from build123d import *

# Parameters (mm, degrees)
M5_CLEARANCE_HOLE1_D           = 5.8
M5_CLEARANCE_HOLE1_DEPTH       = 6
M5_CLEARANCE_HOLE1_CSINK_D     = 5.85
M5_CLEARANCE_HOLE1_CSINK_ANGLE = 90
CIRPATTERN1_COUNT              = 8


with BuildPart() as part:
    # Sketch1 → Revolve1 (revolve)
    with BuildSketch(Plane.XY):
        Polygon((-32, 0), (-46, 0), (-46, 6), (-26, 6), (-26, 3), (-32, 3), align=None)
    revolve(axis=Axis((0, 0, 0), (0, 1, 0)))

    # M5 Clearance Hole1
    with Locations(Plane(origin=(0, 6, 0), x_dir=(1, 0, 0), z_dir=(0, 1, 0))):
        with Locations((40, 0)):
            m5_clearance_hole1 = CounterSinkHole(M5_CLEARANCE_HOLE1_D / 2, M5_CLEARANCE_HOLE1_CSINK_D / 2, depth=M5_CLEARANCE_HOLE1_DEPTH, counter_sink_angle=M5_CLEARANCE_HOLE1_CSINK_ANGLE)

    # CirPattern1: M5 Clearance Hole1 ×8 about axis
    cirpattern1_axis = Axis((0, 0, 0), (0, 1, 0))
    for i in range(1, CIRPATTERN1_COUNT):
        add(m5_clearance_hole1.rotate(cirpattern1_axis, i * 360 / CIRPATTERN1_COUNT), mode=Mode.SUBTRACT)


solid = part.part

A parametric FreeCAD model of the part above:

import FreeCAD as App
import Part
import Sketcher

V = App.Vector


def add_polygon(sketch, points):
    """Adds a closed chain of lines whose ends are joined by coincident constraints."""
    first, n = sketch.GeometryCount, len(points)
    for a, b in zip(points, points[1:] + points[:1]):
        sketch.addGeometry(Part.LineSegment(App.Vector(*a, 0), App.Vector(*b, 0)), False)
    for i in range(n):
        sketch.addConstraint(Sketcher.Constraint("Coincident", first + i, 2, first + (i + 1) % n, 1))

doc = App.newDocument("Part")
params = doc.addObject("Spreadsheet::Sheet", "Params")
for row, (alias, value) in enumerate([
    ("sketch1_width", "14 mm"),
    ("sketch1_width2", "6 mm"),
    ("revolution_angle", "360 deg"),
    ("sketch2_diameter", "5.8 mm"),
    ("hole_diameter", "5.8 mm"),
    ("hole_depth", "6 mm"),
    ("hole_csink_diameter", "5.85 mm"),
], start=1):
    params.set(f"A{row}", alias)
    params.set(f"B{row}", "=" + value)
    params.setAlias(f"B{row}", alias)

body = doc.addObject("PartDesign::Body", "Body")

# Sketch on XY plane
sketch1 = body.newObject("Sketcher::SketchObject", "Sketch")
sketch1.AttachmentSupport = (doc.getObject("XY_Plane"), [""])
sketch1.MapMode = "FlatFace"
add_polygon(sketch1, [(-46, 0), (-32, 0), (-32, 3), (-26, 3), (-26, 6), (-46, 6)])  # lines 0-5
sketch1.addConstraint([
    Sketcher.Constraint("Horizontal", 0),
    Sketcher.Constraint("Vertical", 1),
    Sketcher.Constraint("Horizontal", 2),
    Sketcher.Constraint("Vertical", 3),
    Sketcher.Constraint("Horizontal", 4),
    Sketcher.Constraint("Vertical", 5),
    Sketcher.Constraint("PointOnObject", 0, 2, -1),
    Sketcher.Constraint("Equal", 1, 3),
    Sketcher.Constraint("Equal", 2, 5),
    Sketcher.Constraint("DistanceX", 0, 1, 0, 2, 14.0),
    Sketcher.Constraint("DistanceX", 2, 1, 2, 2, 6.0),
    Sketcher.Constraint("DistanceX", 0, 2, -1, 1, 32.0),
])
sketch1.setExpression("Constraints[15]", "Params.sketch1_width")
sketch1.setExpression("Constraints[16]", "Params.sketch1_width2")
revolution = body.newObject("PartDesign::Revolution", "Revolution")
revolution.Profile = sketch1
revolution.ReferenceAxis = (sketch1, ["V_Axis"])
revolution.setExpression("Angle", "Params.revolution_angle")

# Sketch on XZ plane
sketch2 = body.newObject("Sketcher::SketchObject", "Sketch001")
sketch2.AttachmentSupport = (doc.getObject("XZ_Plane"), [""])
sketch2.MapMode = "FlatFace"
sketch2.AttachmentOffset = App.Placement(V(0, 0, -6), App.Rotation())
sketch2.addGeometry(Part.Circle(V(40, 0, 0), V(0, 0, 1), 2.9), False)
sketch2.addConstraint([
    Sketcher.Constraint("PointOnObject", 0, 3, -1),
    Sketcher.Constraint("Diameter", 0, 5.8),
    Sketcher.Constraint("DistanceX", -1, 1, 0, 3, 40.0),
])
sketch2.setExpression("Constraints[1]", "Params.sketch2_diameter")
doc.recompute()
hole = body.newObject("PartDesign::Hole", "Hole")
hole.Profile = sketch2
hole.ThreadType = "None"
hole.setExpression("Diameter", "Params.hole_diameter")
hole.DepthType = "Dimension"
hole.setExpression("Depth", "Params.hole_depth")
hole.DrillPoint = "Flat"
hole.HoleCutType = "Countersink"
hole.setExpression("HoleCutDiameter", "Params.hole_csink_diameter")
hole.HoleCutCountersinkAngle = 90
hole.Reversed = True
doc.recompute()

polarpattern = body.newObject("PartDesign::PolarPattern", "PolarPattern")
polarpattern.Originals = [hole]
polarpattern.Axis = (doc.getObject("Y_Axis"), [""])
polarpattern.Angle = 360
polarpattern.Occurrences = 8
body.Tip = polarpattern

doc.recompute()
